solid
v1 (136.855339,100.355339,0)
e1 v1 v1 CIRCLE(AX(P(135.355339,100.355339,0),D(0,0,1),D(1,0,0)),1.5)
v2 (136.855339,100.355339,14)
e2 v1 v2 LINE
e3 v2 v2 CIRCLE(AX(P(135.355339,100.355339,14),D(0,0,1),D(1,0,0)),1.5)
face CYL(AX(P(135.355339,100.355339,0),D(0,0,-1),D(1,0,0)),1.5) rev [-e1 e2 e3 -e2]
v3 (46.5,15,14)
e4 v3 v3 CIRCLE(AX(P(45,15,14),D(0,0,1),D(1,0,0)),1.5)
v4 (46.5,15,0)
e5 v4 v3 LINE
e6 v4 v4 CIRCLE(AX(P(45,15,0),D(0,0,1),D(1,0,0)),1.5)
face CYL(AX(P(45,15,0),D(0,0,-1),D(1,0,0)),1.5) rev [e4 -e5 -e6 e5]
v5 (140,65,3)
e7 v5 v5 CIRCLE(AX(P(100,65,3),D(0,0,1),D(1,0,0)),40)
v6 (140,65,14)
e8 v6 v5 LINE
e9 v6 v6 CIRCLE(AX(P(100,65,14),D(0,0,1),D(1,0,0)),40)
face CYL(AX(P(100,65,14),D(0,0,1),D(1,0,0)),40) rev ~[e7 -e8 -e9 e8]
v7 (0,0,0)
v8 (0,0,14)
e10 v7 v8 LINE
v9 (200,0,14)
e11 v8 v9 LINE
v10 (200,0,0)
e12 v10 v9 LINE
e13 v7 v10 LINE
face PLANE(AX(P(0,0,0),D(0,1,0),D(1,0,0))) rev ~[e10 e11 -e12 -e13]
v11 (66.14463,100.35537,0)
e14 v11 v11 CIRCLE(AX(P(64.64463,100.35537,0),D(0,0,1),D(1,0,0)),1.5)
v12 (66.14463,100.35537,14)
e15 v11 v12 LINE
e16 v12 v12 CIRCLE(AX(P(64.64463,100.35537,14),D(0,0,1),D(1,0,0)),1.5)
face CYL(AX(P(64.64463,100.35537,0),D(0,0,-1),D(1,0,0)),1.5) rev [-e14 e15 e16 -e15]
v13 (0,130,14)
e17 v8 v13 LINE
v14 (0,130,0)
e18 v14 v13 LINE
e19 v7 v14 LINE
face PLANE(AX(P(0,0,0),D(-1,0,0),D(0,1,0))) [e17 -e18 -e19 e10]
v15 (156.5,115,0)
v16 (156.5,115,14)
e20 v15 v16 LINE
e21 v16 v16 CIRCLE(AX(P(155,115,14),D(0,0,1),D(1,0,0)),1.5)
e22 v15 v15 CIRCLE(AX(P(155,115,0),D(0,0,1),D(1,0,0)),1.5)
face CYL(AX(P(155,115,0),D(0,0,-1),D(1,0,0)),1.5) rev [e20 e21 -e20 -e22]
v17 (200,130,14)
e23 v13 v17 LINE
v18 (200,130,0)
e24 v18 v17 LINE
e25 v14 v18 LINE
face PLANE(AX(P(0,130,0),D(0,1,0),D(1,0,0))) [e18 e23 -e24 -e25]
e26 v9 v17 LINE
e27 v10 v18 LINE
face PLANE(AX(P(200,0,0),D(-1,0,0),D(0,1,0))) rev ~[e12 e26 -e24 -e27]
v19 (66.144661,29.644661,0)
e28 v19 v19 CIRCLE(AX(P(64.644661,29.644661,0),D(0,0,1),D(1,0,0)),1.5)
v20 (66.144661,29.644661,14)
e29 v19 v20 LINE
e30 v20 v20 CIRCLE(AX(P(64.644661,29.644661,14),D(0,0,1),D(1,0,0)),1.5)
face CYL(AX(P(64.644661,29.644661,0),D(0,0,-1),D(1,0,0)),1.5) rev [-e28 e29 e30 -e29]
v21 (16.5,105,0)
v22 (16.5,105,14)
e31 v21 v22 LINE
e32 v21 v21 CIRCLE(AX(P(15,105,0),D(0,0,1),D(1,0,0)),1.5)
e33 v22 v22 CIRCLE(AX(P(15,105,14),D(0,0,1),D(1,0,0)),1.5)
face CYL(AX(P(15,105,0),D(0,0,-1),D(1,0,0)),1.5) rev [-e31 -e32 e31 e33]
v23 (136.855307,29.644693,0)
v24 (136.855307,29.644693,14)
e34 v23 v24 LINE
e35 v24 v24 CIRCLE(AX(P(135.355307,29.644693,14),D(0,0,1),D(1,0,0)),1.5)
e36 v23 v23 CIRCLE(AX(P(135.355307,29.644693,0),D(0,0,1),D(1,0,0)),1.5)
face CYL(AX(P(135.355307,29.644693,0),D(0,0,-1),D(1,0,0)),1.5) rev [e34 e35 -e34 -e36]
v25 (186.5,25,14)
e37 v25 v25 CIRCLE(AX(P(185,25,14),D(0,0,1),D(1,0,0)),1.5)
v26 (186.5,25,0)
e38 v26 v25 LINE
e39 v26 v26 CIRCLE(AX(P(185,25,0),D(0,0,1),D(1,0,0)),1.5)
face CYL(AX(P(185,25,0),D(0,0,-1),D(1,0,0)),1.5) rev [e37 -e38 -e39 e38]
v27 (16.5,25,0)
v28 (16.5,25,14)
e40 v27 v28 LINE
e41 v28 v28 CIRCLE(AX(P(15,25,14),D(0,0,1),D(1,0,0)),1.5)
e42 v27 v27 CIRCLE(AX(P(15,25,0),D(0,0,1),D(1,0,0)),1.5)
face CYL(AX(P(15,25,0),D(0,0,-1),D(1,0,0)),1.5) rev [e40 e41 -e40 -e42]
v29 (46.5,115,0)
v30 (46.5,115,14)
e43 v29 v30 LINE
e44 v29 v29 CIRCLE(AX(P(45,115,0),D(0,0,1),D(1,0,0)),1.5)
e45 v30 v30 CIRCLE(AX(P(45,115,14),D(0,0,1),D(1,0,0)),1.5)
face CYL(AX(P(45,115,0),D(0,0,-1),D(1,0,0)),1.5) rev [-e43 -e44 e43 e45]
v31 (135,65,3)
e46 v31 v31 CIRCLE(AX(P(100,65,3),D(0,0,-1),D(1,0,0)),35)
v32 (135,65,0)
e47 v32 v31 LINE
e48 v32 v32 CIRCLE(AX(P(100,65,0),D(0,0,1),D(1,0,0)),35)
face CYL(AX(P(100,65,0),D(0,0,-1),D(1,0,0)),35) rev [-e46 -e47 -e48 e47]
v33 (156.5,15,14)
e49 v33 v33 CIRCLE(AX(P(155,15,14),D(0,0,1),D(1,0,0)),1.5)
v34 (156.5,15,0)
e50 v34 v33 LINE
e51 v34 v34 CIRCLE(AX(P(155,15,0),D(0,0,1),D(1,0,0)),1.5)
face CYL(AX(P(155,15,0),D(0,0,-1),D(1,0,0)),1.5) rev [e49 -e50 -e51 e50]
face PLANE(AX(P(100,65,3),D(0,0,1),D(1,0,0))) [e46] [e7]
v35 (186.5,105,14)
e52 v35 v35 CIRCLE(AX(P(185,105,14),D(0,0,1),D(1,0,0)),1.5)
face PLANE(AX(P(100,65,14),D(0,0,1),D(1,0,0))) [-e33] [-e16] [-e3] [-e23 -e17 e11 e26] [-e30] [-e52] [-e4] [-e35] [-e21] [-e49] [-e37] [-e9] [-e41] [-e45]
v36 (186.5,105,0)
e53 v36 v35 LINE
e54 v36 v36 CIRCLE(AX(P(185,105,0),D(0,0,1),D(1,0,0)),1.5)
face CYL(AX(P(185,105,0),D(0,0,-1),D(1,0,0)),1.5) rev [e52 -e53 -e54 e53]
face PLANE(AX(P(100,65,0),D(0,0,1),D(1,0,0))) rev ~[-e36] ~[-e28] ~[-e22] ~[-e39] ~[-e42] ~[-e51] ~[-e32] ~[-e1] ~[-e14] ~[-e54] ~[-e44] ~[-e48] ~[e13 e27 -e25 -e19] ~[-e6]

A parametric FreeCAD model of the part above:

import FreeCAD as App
import Part
import Sketcher
Q = App.Units.Quantity

doc = App.newDocument("Part")
body = doc.addObject("PartDesign::Body", "Body")

# Sketch on XY plane
sketch1 = body.newObject("Sketcher::SketchObject", "Sketch")
sketch1.AttachmentSupport = (doc.getObject("XY_Plane"), [""])
sketch1.MapMode = "FlatFace"
sketch1.addGeometry(Part.LineSegment(App.Vector(0, 130, 0), App.Vector(0, 0, 0)), False)
sketch1.addGeometry(Part.LineSegment(App.Vector(0, 0, 0), App.Vector(200, 0, 0)), False)
sketch1.addGeometry(Part.LineSegment(App.Vector(200, 0, 0), App.Vector(200, 130, 0)), False)
sketch1.addGeometry(Part.LineSegment(App.Vector(200, 130, 0), App.Vector(0, 130, 0)), False)
sketch1.addGeometry(Part.Circle(App.Vector(15, 25, 0), App.Vector(0, 0, 1), 1.5), False)
sketch1.addGeometry(Part.Circle(App.Vector(45, 15, 0), App.Vector(0, 0, 1), 1.5), False)
sketch1.addGeometry(Part.Circle(App.Vector(64.6, 29.6, 0), App.Vector(0, 0, 1), 1.5), False)
sketch1.addGeometry(Part.Circle(App.Vector(135.4, 29.6, 0), App.Vector(0, 0, 1), 1.5), False)
sketch1.addGeometry(Part.Circle(App.Vector(155, 15, 0), App.Vector(0, 0, 1), 1.5), False)
sketch1.addGeometry(Part.Circle(App.Vector(185, 25, 0), App.Vector(0, 0, 1), 1.5), False)
sketch1.addGeometry(Part.Circle(App.Vector(100, 65, 0), App.Vector(0, 0, 1), 35), False)
sketch1.addGeometry(Part.Circle(App.Vector(15, 105, 0), App.Vector(0, 0, 1), 1.5), False)
sketch1.addGeometry(Part.Circle(App.Vector(45, 115, 0), App.Vector(0, 0, 1), 1.5), False)
sketch1.addGeometry(Part.Circle(App.Vector(64.6, 100.4, 0), App.Vector(0, 0, 1), 1.5), False)
sketch1.addGeometry(Part.Circle(App.Vector(135.4, 100.4, 0), App.Vector(0, 0, 1), 1.5), False)
sketch1.addGeometry(Part.Circle(App.Vector(155, 115, 0), App.Vector(0, 0, 1), 1.5), False)
sketch1.addGeometry(Part.Circle(App.Vector(185, 105, 0), App.Vector(0, 0, 1), 1.5), False)
sketch1.addConstraint(Sketcher.Constraint("Coincident", 0, 2, 1, 1))
sketch1.addConstraint(Sketcher.Constraint("Coincident", 1, 2, 2, 1))
sketch1.addConstraint(Sketcher.Constraint("Coincident", 2, 2, 3, 1))
sketch1.addConstraint(Sketcher.Constraint("Coincident", 3, 2, 0, 1))
sketch1.addConstraint(Sketcher.Constraint("Vertical", 0))
sketch1.addConstraint(Sketcher.Constraint("Horizontal", 1))
sketch1.addConstraint(Sketcher.Constraint("Vertical", 2))
sketch1.addConstraint(Sketcher.Constraint("Horizontal", 3))
sketch1.addConstraint(Sketcher.Constraint("Coincident", 0, 2, -1, 1))
sketch1.addConstraint(Sketcher.Constraint("Equal", 4, 5))
sketch1.addConstraint(Sketcher.Constraint("Equal", 5, 6))
sketch1.addConstraint(Sketcher.Constraint("Equal", 6, 7))
sketch1.addConstraint(Sketcher.Constraint("Equal", 7, 8))
sketch1.addConstraint(Sketcher.Constraint("Equal", 8, 9))
sketch1.addConstraint(Sketcher.Constraint("Equal", 9, 11))
sketch1.addConstraint(Sketcher.Constraint("Equal", 11, 12))
sketch1.addConstraint(Sketcher.Constraint("Equal", 12, 13))
sketch1.addConstraint(Sketcher.Constraint("Equal", 13, 14))
sketch1.addConstraint(Sketcher.Constraint("Equal", 14, 15))
sketch1.addConstraint(Sketcher.Constraint("Equal", 15, 16))
sketch1.addConstraint(Sketcher.Constraint("Horizontal", 5, 3, 8, 3))
sketch1.addConstraint(Sketcher.Constraint("Horizontal", 4, 3, 9, 3))
sketch1.addConstraint(Sketcher.Constraint("Horizontal", 12, 3, 15, 3))
sketch1.addConstraint(Sketcher.Constraint("Horizontal", 11, 3, 16, 3))
sketch1.addConstraint(Sketcher.Constraint("Vertical", 4, 3, 11, 3))
sketch1.addConstraint(Sketcher.Constraint("Vertical", 5, 3, 12, 3))
sketch1.addConstraint(Sketcher.Constraint("Vertical", 8, 3, 15, 3))
sketch1.addConstraint(Sketcher.Constraint("Vertical", 9, 3, 16, 3))
sketch1.addConstraint(Sketcher.Constraint("Diameter", 4, Q("3 mm")))
sketch1.addConstraint(Sketcher.Constraint("Diameter", 10, Q("70 mm")))
sketch1.addConstraint(Sketcher.Constraint("DistanceX", 1, 1, 1, 2, Q("200 mm")))
sketch1.addConstraint(Sketcher.Constraint("DistanceY", 0, 2, 0, 1, Q("130 mm")))
sketch1.addConstraint(Sketcher.Constraint("DistanceX", -1, 1, 4, 3, Q("15 mm")))
sketch1.addConstraint(Sketcher.Constraint("DistanceY", -1, 1, 4, 3, Q("25 mm")))
sketch1.addConstraint(Sketcher.Constraint("DistanceX", -1, 1, 5, 3, Q("45 mm")))
sketch1.addConstraint(Sketcher.Constraint("DistanceY", -1, 1, 5, 3, Q("15 mm")))
sketch1.addConstraint(Sketcher.Constraint("DistanceX", -1, 1, 8, 3, Q("155 mm")))
sketch1.addConstraint(Sketcher.Constraint("DistanceX", -1, 1, 9, 3, Q("185 mm")))
sketch1.addConstraint(Sketcher.Constraint("DistanceX", -1, 1, 10, 3, Q("100 mm")))
sketch1.addConstraint(Sketcher.Constraint("DistanceY", -1, 1, 10, 3, Q("65 mm")))
sketch1.addConstraint(Sketcher.Constraint("DistanceY", -1, 1, 11, 3, Q("105 mm")))
sketch1.addConstraint(Sketcher.Constraint("DistanceY", -1, 1, 12, 3, Q("115 mm")))
sketch1.addConstraint(Sketcher.Constraint("DistanceX", -1, 1, 6, 3, Q("64.644661 mm")))
sketch1.addConstraint(Sketcher.Constraint("DistanceY", -1, 1, 6, 3, Q("29.644661 mm")))
sketch1.addConstraint(Sketcher.Constraint("DistanceX", -1, 1, 13, 3, Q("64.64463 mm")))
sketch1.addConstraint(Sketcher.Constraint("DistanceY", -1, 1, 13, 3, Q("100.35537 mm")))
sketch1.addConstraint(Sketcher.Constraint("DistanceX", -1, 1, 14, 3, Q("135.355339 mm")))
sketch1.addConstraint(Sketcher.Constraint("DistanceY", -1, 1, 14, 3, Q("100.355339 mm")))
sketch1.addConstraint(Sketcher.Constraint("DistanceX", -1, 1, 7, 3, Q("135.355307 mm")))
sketch1.addConstraint(Sketcher.Constraint("DistanceY", -1, 1, 7, 3, Q("29.644693 mm")))
pad1 = body.newObject("PartDesign::Pad", "Pad")
pad1.Profile = sketch1
pad1.Length = 14

# Sketch on XY plane
sketch2 = body.newObject("Sketcher::SketchObject", "Sketch001")
sketch2.AttachmentSupport = (doc.getObject("XY_Plane"), [""])
sketch2.MapMode = "FlatFace"
sketch2.AttachmentOffset = App.Placement(App.Vector(0, 0, 14), App.Rotation())
sketch2.addGeometry(Part.Circle(App.Vector(100, 65, 0), App.Vector(0, 0, 1), 40), False)
sketch2.addConstraint(Sketcher.Constraint("Diameter", 0, Q("80 mm")))
sketch2.addConstraint(Sketcher.Constraint("DistanceX", -1, 1, 0, 3, Q("100 mm")))
sketch2.addConstraint(Sketcher.Constraint("DistanceY", -1, 1, 0, 3, Q("65 mm")))
pocket1 = body.newObject("PartDesign::Pocket", "Pocket")
pocket1.Profile = sketch2
pocket1.Length = 11

doc.recompute()
